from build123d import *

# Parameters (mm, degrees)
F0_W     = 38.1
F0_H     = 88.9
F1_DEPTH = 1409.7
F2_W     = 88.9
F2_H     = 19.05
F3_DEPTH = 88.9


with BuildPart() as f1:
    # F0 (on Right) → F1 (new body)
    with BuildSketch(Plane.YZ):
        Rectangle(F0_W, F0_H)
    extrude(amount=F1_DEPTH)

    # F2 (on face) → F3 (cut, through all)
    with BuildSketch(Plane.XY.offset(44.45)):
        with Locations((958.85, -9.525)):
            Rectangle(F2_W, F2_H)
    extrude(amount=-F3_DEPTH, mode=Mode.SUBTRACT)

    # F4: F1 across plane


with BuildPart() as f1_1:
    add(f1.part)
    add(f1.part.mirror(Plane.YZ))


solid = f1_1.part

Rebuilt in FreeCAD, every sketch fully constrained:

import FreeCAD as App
import Part
import Sketcher
Q = App.Units.Quantity


def add_polygon(sketch, points):
    """Adds a closed chain of lines whose ends are joined by coincident constraints."""
    first, n = sketch.GeometryCount, len(points)
    for a, b in zip(points, points[1:] + points[:1]):
        sketch.addGeometry(Part.LineSegment(App.Vector(*a, 0), App.Vector(*b, 0)), False)
    for i in range(n):
        sketch.addConstraint(Sketcher.Constraint("Coincident", first + i, 2, first + (i + 1) % n, 1))

doc = App.newDocument("Part")
body = doc.addObject("PartDesign::Body", "Body")

sketch1 = body.newObject("Sketcher::SketchObject", "Sketch")
sketch1.AttachmentSupport = (doc.getObject("YZ_Plane"), [""])
sketch1.MapMode = "FlatFace"
add_polygon(sketch1, [(-19.05, 44.45), (-19.05, -44.45), (19.05, -44.45), (19.05, 44.45)])
sketch1.addConstraint(Sketcher.Constraint("Vertical", 0))
sketch1.addConstraint(Sketcher.Constraint("Horizontal", 1))
sketch1.addConstraint(Sketcher.Constraint("Vertical", 2))
sketch1.addConstraint(Sketcher.Constraint("Horizontal", 3))
sketch1.addConstraint(Sketcher.Constraint("Symmetric", 0, 2, 2, 2, -1, 1))
sketch1.addConstraint(Sketcher.Constraint("DistanceX", 1, 1, 1, 2, Q("1.5 in")))
sketch1.addConstraint(Sketcher.Constraint("DistanceY", 0, 2, 0, 1, Q("3.5 in")))
pad1 = body.newObject("PartDesign::Pad", "Pad")
pad1.Profile = sketch1
pad1.Length = Q("55.5 in")

sketch2 = body.newObject("Sketcher::SketchObject", "Sketch001")
sketch2.AttachmentSupport = (doc.getObject("XY_Plane"), [""])
sketch2.MapMode = "FlatFace"
sketch2.AttachmentOffset = App.Placement(App.Vector(0, 0, 1.75 * 25.4), App.Rotation())
add_polygon(sketch2, [(914.4, 0), (914.4, -19.05), (1003.3, -19.05), (1003.3, 0)])
sketch2.addConstraint(Sketcher.Constraint("Vertical", 0))
sketch2.addConstraint(Sketcher.Constraint("Horizontal", 1))
sketch2.addConstraint(Sketcher.Constraint("Vertical", 2))
sketch2.addConstraint(Sketcher.Constraint("Horizontal", 3))
sketch2.addConstraint(Sketcher.Constraint("PointOnObject", 2, 2, -1))
sketch2.addConstraint(Sketcher.Constraint("DistanceX", 1, 1, 1, 2, Q("3.5 in")))
sketch2.addConstraint(Sketcher.Constraint("DistanceX", -1, 1, 0, 2, Q("36 in")))
sketch2.addConstraint(Sketcher.Constraint("DistanceY", 0, 2, 0, 1, Q("0.75 in")))
pocket1 = body.newObject("PartDesign::Pocket", "Pocket")
pocket1.Profile = sketch2
pocket1.Type = "ThroughAll"
body2 = doc.addObject("PartDesign::Body", "Body001")
doc.recompute()

body2.BaseFeature = body
doc.recompute()

mirroring = doc.addObject("Part::Mirroring", "Mirroring")
mirroring.Source = body
mirroring.Base = App.Vector(0, 0, 0)
mirroring.Normal = App.Vector(1, 0, 0)
body3 = doc.addObject("PartDesign::Body", "Body002")
body3.BaseFeature = mirroring
boolean = body2.newObject("PartDesign::Boolean", "Boolean")
boolean.Type = "Fuse"
boolean.addObjects([body3])
doc.recompute()
mirroring.Visibility = False

doc.recompute()
